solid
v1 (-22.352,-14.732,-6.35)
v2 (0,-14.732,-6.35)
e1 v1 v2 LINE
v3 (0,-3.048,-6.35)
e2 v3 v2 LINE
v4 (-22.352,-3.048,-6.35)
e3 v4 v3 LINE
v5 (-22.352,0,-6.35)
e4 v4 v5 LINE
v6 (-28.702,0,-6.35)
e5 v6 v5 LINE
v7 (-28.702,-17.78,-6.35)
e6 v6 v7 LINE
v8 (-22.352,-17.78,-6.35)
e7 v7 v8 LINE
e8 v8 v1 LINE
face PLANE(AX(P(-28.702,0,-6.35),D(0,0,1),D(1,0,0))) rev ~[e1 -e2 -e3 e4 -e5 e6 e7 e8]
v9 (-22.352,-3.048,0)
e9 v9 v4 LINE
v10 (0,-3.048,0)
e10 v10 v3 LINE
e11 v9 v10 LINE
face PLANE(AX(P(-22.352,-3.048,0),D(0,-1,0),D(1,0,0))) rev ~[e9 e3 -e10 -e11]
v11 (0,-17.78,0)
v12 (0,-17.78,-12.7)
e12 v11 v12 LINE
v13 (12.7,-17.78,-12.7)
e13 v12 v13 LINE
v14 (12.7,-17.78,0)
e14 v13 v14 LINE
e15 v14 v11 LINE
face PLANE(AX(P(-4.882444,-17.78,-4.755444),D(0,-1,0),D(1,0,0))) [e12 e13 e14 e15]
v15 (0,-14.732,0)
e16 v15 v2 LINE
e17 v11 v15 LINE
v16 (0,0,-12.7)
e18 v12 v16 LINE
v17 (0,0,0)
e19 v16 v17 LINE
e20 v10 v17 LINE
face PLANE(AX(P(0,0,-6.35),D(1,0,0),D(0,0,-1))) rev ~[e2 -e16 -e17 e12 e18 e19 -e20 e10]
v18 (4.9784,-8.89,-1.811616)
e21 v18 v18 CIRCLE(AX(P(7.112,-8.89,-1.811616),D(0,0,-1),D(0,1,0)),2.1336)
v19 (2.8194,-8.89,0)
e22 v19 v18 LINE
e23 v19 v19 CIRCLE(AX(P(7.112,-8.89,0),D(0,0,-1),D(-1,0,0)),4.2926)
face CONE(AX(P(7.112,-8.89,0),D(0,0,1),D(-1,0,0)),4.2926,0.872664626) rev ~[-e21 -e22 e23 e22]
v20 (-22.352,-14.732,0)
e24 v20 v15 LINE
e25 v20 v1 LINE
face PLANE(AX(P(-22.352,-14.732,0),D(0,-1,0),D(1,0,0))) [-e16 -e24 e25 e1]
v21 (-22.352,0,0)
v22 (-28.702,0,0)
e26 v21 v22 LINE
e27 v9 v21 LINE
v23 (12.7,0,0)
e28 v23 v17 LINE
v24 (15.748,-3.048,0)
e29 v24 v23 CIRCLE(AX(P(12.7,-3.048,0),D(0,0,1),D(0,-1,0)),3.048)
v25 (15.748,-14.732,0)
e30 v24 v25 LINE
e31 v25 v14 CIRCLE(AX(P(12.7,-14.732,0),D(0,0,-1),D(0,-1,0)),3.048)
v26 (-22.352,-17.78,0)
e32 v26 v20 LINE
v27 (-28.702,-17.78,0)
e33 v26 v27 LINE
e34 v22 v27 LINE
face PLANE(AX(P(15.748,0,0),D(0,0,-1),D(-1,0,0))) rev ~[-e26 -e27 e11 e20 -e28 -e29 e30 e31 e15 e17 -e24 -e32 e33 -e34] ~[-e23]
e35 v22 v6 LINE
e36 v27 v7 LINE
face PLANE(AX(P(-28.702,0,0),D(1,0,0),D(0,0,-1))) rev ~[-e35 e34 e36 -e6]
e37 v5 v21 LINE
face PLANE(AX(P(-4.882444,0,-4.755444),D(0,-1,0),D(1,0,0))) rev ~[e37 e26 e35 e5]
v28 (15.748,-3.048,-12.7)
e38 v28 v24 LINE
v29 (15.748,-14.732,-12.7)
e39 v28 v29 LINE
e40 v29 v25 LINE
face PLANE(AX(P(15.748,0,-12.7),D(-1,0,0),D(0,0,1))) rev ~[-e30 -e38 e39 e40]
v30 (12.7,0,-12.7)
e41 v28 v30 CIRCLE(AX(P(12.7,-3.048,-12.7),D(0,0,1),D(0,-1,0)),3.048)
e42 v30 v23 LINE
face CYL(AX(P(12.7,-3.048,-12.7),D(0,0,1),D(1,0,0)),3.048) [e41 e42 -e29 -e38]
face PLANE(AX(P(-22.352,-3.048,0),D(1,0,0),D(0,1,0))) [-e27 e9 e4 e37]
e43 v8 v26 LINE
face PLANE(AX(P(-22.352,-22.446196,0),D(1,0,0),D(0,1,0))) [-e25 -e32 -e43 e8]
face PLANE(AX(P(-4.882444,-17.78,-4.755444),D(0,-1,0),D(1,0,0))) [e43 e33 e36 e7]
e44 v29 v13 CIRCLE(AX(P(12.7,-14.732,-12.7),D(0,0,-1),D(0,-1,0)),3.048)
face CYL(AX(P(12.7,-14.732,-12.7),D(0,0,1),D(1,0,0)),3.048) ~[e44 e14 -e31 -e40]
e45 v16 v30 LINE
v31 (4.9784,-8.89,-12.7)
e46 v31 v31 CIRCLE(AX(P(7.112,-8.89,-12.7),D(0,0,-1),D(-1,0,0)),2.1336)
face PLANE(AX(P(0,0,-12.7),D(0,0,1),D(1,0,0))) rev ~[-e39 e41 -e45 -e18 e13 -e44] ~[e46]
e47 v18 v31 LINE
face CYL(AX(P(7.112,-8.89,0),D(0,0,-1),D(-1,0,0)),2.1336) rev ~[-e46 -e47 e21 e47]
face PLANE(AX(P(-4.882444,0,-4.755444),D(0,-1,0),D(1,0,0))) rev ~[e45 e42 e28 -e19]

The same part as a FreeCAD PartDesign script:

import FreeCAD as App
import Part
import Sketcher
from FreeCAD import Vector
Q = App.Units.Quantity


def edges_at(feature, points):
    """Names of the edges that pass closest to the given points."""
    edges = feature.Shape.Edges
    near = lambda p: min(range(len(edges)), key=lambda i: edges[i].distToShape(Part.Vertex(*p))[0])
    return sorted({f"Edge{near(p) + 1}" for p in points})

doc = App.newDocument("Part")
body = doc.addObject("PartDesign::Body", "Body")

# Sketch on XZ plane
sketch1 = body.newObject("Sketcher::SketchObject", "Sketch")
sketch1.AttachmentSupport = (doc.getObject("XZ_Plane"), [""])
sketch1.MapMode = "FlatFace"
sketch1.addGeometry([
    Part.LineSegment(Vector(16, -13, 0), Vector(16, 0, 0)),  # 0
    Part.LineSegment(Vector(16, 0, 0), Vector(-29, 0, 0)),  # 1
    Part.LineSegment(Vector(-29, 0, 0), Vector(-29, -6, 0)),  # 2
    Part.LineSegment(Vector(-29, -6, 0), Vector(0, -6, 0)),  # 3
    Part.LineSegment(Vector(0, -6, 0), Vector(0, -13, 0)),  # 4
    Part.LineSegment(Vector(0, -13, 0), Vector(16, -13, 0)),  # 5
], False)
sketch1.addConstraint([
    Sketcher.Constraint("Coincident", 0, 2, 1, 1),
    Sketcher.Constraint("Coincident", 1, 2, 2, 1),
    Sketcher.Constraint("Coincident", 2, 2, 3, 1),
    Sketcher.Constraint("Coincident", 3, 2, 4, 1),
    Sketcher.Constraint("Coincident", 4, 2, 5, 1),
    Sketcher.Constraint("Coincident", 5, 2, 0, 1),
    Sketcher.Constraint("Vertical", 0),
    Sketcher.Constraint("Horizontal", 1),
    Sketcher.Constraint("Vertical", 2),
    Sketcher.Constraint("Horizontal", 3),
    Sketcher.Constraint("Vertical", 4),
    Sketcher.Constraint("Horizontal", 5),
    Sketcher.Constraint("PointOnObject", 0, 2, -1),
    Sketcher.Constraint("PointOnObject", 3, 2, -2),
    Sketcher.Constraint("Equal", 2, 4),
    Sketcher.Constraint("DistanceY", 0, 1, 0, 2, Q("0.5 in")),
    Sketcher.Constraint("DistanceX", 1, 2, 1, 1, Q("1.75 in")),
    Sketcher.Constraint("DistanceX", 3, 1, 3, 2, Q("1.13 in")),
])
pad1 = body.newObject("PartDesign::Pad", "Pad")
pad1.Profile = sketch1
pad1.Length = Q("0.7 in")

# Sketch on XY plane
sketch2 = body.newObject("Sketcher::SketchObject", "Sketch001")
sketch2.AttachmentSupport = (doc.getObject("XY_Plane"), [""])
sketch2.MapMode = "FlatFace"
sketch2.addGeometry([
    Part.LineSegment(Vector(-22, -15, 0), Vector(-22, -22, 0)),  # 0
    Part.LineSegment(Vector(-22, -22, 0), Vector(0, -22, 0)),  # 1
    Part.LineSegment(Vector(0, -22, 0), Vector(0, -15, 0)),  # 2
    Part.LineSegment(Vector(0, -15, 0), Vector(-22, -15, 0)),  # 3
    Part.LineSegment(Vector(-22, 3, 0), Vector(-22, -3, 0)),  # 4
    Part.LineSegment(Vector(-22, -3, 0), Vector(0, -3, 0)),  # 5
    Part.LineSegment(Vector(0, -3, 0), Vector(0, 3, 0)),  # 6
    Part.LineSegment(Vector(0, 3, 0), Vector(-22, 3, 0)),  # 7
], False)
sketch2.addConstraint([
    Sketcher.Constraint("Coincident", 0, 2, 1, 1),
    Sketcher.Constraint("Coincident", 1, 2, 2, 1),
    Sketcher.Constraint("Coincident", 2, 2, 3, 1),
    Sketcher.Constraint("Coincident", 3, 2, 0, 1),
    Sketcher.Constraint("Coincident", 4, 2, 5, 1),
    Sketcher.Constraint("Coincident", 5, 2, 6, 1),
    Sketcher.Constraint("Coincident", 6, 2, 7, 1),
    Sketcher.Constraint("Coincident", 7, 2, 4, 1),
    Sketcher.Constraint("Vertical", 0),
    Sketcher.Constraint("Horizontal", 1),
    Sketcher.Constraint("Vertical", 2),
    Sketcher.Constraint("Horizontal", 3),
    Sketcher.Constraint("Vertical", 4),
    Sketcher.Constraint("Horizontal", 5),
    Sketcher.Constraint("Vertical", 6),
    Sketcher.Constraint("Horizontal", 7),
    Sketcher.Constraint("PointOnObject", 1, 2, -2),
    Sketcher.Constraint("PointOnObject", 5, 2, -2),
    Sketcher.Constraint("Vertical", 3, 2, 4, 2),
    Sketcher.Constraint("DistanceX", 1, 1, 1, 2, Q("0.88 in")),
    Sketcher.Constraint("DistanceY", 2, 2, -1, 1, Q("0.58 in")),
    Sketcher.Constraint("DistanceY", 4, 2, -1, 1, Q("0.12 in")),
    Sketcher.Constraint("DistanceY", 4, 2, 4, 1, 6.145762),
    Sketcher.Constraint("DistanceY", 0, 2, 0, 1, 7.714197),
])
pocket1 = body.newObject("PartDesign::Pocket", "Pocket")
pocket1.Profile = sketch2
pocket1.Type = "ThroughAll"
doc.recompute()

fillet = body.newObject("PartDesign::Fillet", "Fillet")
fillet.Base = (pocket1, edges_at(pocket1, [(15.748, 0, -6.35), (15.748, -17.78, -6.35)]))
fillet.Radius = Q("0.12 in")

# Sketch on XY plane
sketch3 = body.newObject("Sketcher::SketchObject", "Sketch002")
sketch3.AttachmentSupport = (doc.getObject("XY_Plane"), [""])
sketch3.MapMode = "FlatFace"
sketch3.addGeometry(Part.Circle(Vector(7.1, -8.9, 0), Vector(0, 0, 1), 2.1), False)
sketch3.addConstraint([
    Sketcher.Constraint("Diameter", 0, Q("0.168 in")),
    Sketcher.Constraint("DistanceX", -1, 1, 0, 3, Q("0.28 in")),
    Sketcher.Constraint("DistanceY", 0, 3, -1, 1, Q("0.35 in")),
])
doc.recompute()
hole = body.newObject("PartDesign::Hole", "Hole")
hole.Profile = sketch3
hole.ThreadType = "None"
hole.Diameter = Q("0.168 in")
hole.DepthType = "ThroughAll"
hole.HoleCutType = "Countersink"
hole.HoleCutDiameter = Q("0.338 in")
hole.HoleCutCountersinkAngle = 100

doc.recompute()
